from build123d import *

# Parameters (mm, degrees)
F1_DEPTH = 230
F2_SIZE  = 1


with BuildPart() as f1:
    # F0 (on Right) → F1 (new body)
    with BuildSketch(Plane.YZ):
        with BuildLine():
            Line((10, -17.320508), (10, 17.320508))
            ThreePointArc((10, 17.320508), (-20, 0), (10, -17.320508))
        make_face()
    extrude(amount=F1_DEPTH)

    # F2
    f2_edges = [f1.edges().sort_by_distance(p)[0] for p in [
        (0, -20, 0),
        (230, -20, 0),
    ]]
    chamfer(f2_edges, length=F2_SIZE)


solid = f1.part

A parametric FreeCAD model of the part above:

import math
import FreeCAD as App
import Part
import Sketcher

V = App.Vector


def edges_at(feature, points):
    """Names of the edges that pass closest to the given points."""
    edges = feature.Shape.Edges
    near = lambda p: min(range(len(edges)), key=lambda i: edges[i].distToShape(Part.Vertex(*p))[0])
    return sorted({f"Edge{near(p) + 1}" for p in points})

doc = App.newDocument("Part")
body = doc.addObject("PartDesign::Body", "Body")

sketch1 = body.newObject("Sketcher::SketchObject", "Sketch")
sketch1.AttachmentSupport = (doc.getObject("YZ_Plane"), [""])
sketch1.MapMode = "FlatFace"
sketch1.addGeometry(Part.LineSegment(V(10, -17, 0), V(10, 17, 0)), False)
sketch1.addGeometry(Part.ArcOfCircle(Part.Circle(V(0, 0, 0), V(0, 0, 1), 20), math.radians(60), math.radians(300)), False)
sketch1.addConstraint(Sketcher.Constraint("Coincident", 0, 1, 1, 2))
sketch1.addConstraint(Sketcher.Constraint("Coincident", 1, 1, 0, 2))
sketch1.addConstraint(Sketcher.Constraint("Vertical", 0))
sketch1.addConstraint(Sketcher.Constraint("Coincident", 1, 3, -1, 1))
sketch1.addConstraint(Sketcher.Constraint("Radius", 1, 20.0))
sketch1.addConstraint(Sketcher.Constraint("DistanceX", -1, 1, 0, 1, 10.0))
pad1 = body.newObject("PartDesign::Pad", "Pad")
pad1.Profile = sketch1
pad1.Length = 230
doc.recompute()

chamfer = body.newObject("PartDesign::Chamfer", "Chamfer")
chamfer.Base = (pad1, edges_at(pad1, [(0, -20, 0), (230, -20, 0)]))
chamfer.Size = 1

doc.recompute()
